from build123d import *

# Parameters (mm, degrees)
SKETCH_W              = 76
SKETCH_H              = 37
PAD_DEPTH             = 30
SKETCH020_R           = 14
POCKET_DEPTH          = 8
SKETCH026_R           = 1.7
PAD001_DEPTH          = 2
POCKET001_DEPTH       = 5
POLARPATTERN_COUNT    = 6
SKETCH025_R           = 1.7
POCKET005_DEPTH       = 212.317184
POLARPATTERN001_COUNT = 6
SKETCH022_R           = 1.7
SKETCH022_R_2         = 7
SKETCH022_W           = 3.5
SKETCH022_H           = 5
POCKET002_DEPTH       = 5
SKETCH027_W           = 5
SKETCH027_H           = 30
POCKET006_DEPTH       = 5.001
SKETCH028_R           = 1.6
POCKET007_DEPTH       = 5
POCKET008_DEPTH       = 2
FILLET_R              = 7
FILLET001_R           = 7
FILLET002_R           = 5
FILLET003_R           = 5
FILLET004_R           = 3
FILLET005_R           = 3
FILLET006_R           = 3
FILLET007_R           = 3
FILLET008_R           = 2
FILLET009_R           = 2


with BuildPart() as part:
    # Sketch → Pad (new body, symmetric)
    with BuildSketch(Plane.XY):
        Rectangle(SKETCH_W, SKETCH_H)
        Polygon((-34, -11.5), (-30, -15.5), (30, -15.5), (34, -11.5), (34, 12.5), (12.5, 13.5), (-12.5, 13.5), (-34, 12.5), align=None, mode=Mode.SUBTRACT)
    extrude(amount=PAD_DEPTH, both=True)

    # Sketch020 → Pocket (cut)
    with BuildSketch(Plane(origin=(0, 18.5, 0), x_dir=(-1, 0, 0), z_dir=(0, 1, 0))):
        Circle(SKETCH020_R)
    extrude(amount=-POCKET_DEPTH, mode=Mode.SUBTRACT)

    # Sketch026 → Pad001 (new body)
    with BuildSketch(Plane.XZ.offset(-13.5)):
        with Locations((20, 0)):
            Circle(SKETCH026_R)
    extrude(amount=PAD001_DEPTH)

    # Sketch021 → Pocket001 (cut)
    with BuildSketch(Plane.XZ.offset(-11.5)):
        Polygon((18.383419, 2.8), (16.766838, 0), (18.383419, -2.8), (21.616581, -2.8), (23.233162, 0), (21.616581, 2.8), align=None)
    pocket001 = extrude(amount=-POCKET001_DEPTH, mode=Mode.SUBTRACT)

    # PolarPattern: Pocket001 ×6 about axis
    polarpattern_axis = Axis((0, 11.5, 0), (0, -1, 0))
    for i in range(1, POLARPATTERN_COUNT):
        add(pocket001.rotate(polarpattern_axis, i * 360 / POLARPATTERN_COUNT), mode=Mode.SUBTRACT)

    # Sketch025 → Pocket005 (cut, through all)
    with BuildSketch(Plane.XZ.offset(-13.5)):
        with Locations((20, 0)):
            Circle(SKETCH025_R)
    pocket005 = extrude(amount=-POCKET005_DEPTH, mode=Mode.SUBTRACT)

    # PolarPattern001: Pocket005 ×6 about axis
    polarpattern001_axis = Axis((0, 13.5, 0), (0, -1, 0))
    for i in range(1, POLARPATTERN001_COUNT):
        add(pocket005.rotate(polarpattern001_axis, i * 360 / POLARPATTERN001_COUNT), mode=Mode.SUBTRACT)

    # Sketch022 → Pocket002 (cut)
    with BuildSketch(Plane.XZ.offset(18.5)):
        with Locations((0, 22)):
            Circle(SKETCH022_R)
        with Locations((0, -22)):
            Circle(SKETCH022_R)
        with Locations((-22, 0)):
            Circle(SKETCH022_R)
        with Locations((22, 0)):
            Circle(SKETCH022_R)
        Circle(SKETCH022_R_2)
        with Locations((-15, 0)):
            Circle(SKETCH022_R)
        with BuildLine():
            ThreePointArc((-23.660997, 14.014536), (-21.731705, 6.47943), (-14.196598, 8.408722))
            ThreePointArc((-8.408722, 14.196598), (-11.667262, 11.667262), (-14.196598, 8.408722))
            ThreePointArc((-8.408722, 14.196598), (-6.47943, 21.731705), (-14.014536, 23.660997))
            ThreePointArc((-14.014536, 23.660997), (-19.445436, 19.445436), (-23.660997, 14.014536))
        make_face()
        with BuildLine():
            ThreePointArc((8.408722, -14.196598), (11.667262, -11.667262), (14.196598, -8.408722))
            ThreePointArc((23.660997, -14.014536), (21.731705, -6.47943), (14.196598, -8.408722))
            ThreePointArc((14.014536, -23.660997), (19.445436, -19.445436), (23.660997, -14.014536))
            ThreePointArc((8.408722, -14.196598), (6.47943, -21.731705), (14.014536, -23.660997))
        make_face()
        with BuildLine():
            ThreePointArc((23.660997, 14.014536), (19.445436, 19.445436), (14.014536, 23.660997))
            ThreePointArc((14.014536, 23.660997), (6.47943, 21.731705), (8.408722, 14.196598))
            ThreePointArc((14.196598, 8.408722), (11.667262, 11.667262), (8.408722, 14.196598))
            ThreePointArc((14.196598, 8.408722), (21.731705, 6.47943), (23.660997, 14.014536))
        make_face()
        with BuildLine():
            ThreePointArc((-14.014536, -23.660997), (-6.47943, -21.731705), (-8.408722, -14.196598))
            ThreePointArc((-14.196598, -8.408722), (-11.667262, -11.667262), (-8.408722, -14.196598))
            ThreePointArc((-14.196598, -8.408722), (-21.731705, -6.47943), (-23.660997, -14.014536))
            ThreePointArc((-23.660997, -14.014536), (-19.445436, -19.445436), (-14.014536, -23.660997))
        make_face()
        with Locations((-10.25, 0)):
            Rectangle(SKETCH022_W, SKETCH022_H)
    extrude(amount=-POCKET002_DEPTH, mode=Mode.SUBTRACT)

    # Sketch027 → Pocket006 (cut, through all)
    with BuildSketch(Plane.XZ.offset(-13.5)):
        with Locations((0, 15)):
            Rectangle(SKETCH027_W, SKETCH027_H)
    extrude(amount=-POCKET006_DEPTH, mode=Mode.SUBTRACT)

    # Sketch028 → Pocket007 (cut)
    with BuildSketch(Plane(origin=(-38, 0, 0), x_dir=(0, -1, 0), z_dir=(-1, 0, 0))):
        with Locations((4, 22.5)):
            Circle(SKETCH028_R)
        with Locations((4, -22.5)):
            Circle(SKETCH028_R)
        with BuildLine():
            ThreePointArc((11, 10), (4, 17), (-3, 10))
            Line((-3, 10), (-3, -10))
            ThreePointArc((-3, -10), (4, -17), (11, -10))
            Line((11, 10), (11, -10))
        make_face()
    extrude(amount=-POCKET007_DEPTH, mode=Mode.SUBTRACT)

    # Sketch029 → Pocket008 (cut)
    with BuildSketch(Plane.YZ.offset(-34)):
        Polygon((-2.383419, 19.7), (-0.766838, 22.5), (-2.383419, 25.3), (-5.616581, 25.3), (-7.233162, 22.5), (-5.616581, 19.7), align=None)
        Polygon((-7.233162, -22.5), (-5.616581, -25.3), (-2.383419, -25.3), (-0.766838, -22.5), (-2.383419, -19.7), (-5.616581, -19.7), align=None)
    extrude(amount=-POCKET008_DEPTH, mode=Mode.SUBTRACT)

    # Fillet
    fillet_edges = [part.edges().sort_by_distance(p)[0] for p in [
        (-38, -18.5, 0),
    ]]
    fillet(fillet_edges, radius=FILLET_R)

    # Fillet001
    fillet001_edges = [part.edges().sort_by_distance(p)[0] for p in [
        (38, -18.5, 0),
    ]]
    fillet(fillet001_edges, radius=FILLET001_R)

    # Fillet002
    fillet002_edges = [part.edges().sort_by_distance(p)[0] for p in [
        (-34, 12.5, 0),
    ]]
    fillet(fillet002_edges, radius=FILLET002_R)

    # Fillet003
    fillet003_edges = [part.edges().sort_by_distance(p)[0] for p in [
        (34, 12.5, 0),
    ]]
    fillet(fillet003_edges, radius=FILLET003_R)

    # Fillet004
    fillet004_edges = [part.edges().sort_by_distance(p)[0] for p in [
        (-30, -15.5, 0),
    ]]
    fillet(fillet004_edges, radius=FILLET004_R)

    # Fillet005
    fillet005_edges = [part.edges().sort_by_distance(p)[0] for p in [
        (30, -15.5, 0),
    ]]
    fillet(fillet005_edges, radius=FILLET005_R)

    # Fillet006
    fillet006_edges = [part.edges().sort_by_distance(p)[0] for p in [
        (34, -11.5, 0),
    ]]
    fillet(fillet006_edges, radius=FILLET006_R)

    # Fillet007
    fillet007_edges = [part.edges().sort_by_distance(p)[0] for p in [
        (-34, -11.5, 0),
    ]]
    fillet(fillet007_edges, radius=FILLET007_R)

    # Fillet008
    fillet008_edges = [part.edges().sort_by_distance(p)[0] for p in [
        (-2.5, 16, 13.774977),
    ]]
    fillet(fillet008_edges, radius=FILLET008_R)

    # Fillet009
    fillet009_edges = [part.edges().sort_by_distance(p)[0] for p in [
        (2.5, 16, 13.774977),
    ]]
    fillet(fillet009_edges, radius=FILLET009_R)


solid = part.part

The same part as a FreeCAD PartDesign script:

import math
import FreeCAD as App
import Part
import Sketcher

V = App.Vector
Q = App.Units.Quantity


def edges_at(feature, points):
    """Names of the edges that pass closest to the given points."""
    edges = feature.Shape.Edges
    near = lambda p: min(range(len(edges)), key=lambda i: edges[i].distToShape(Part.Vertex(*p))[0])
    return sorted({f"Edge{near(p) + 1}" for p in points})

doc = App.newDocument("Part")
body = doc.addObject("PartDesign::Body", "Body")

# Sketch on XY plane
sketch1 = doc.addObject("Sketcher::SketchObject", "Sketch")
body.addObject(sketch1)
sketch1.AttachmentSupport = (doc.XY_Plane, [""])
sketch1.MapMode = "FlatFace"
sketch1.addGeometry(Part.LineSegment(V(-38, 18, 0), V(-38, -18, 0)), False)
sketch1.addGeometry(Part.LineSegment(V(-38, -18, 0), V(38, -18, 0)), False)
sketch1.addGeometry(Part.LineSegment(V(38, -18, 0), V(38, 18, 0)), False)
sketch1.addGeometry(Part.LineSegment(V(38, 18, 0), V(-38, 18, 0)), False)
sketch1.addGeometry(Part.LineSegment(V(-30, -16, 0), V(-34, -12, 0)), False)
sketch1.addGeometry(Part.LineSegment(V(-34, -12, 0), V(-34, 12, 0)), False)
sketch1.addGeometry(Part.LineSegment(V(-34, 12, 0), V(-12, 14, 0)), False)
sketch1.addGeometry(Part.LineSegment(V(-12, 14, 0), V(12, 14, 0)), False)
sketch1.addGeometry(Part.LineSegment(V(12, 14, 0), V(34, 12, 0)), False)
sketch1.addGeometry(Part.LineSegment(V(34, 12, 0), V(34, -12, 0)), False)
sketch1.addGeometry(Part.LineSegment(V(34, -12, 0), V(30, -16, 0)), False)
sketch1.addGeometry(Part.LineSegment(V(30, -16, 0), V(-30, -16, 0)), False)
sketch1.addConstraint(Sketcher.Constraint("Coincident", 0, 2, 1, 1))
sketch1.addConstraint(Sketcher.Constraint("Coincident", 1, 2, 2, 1))
sketch1.addConstraint(Sketcher.Constraint("Coincident", 2, 2, 3, 1))
sketch1.addConstraint(Sketcher.Constraint("Coincident", 3, 2, 0, 1))
sketch1.addConstraint(Sketcher.Constraint("Coincident", 4, 2, 5, 1))
sketch1.addConstraint(Sketcher.Constraint("Coincident", 5, 2, 6, 1))
sketch1.addConstraint(Sketcher.Constraint("Coincident", 6, 2, 7, 1))
sketch1.addConstraint(Sketcher.Constraint("Coincident", 7, 2, 8, 1))
sketch1.addConstraint(Sketcher.Constraint("Coincident", 8, 2, 9, 1))
sketch1.addConstraint(Sketcher.Constraint("Coincident", 9, 2, 10, 1))
sketch1.addConstraint(Sketcher.Constraint("Coincident", 10, 2, 11, 1))
sketch1.addConstraint(Sketcher.Constraint("Coincident", 11, 2, 4, 1))
sketch1.addConstraint(Sketcher.Constraint("Vertical", 0))
sketch1.addConstraint(Sketcher.Constraint("Horizontal", 1))
sketch1.addConstraint(Sketcher.Constraint("Vertical", 2))
sketch1.addConstraint(Sketcher.Constraint("Horizontal", 3))
sketch1.addConstraint(Sketcher.Constraint("Vertical", 5))
sketch1.addConstraint(Sketcher.Constraint("Horizontal", 7))
sketch1.addConstraint(Sketcher.Constraint("Vertical", 9))
sketch1.addConstraint(Sketcher.Constraint("Horizontal", 11))
sketch1.addConstraint(Sketcher.Constraint("Symmetric", 0, 2, 2, 2, -1, 1))
sketch1.addConstraint(Sketcher.Constraint("Symmetric", 5, 2, 8, 2, -2))
sketch1.addConstraint(Sketcher.Constraint("Perpendicular", 4, 10))
sketch1.addConstraint(Sketcher.Constraint("Horizontal", 4, 2, 9, 2))
sketch1.addConstraint(Sketcher.Constraint("Equal", 6, 8))
sketch1.addConstraint(Sketcher.Constraint("Equal", 4, 10))
sketch1.addConstraint(Sketcher.Constraint("DistanceX", 1, 1, 1, 2, Q("76 mm")))
sketch1.addConstraint(Sketcher.Constraint("DistanceX", 7, 1, 7, 2, Q("25 mm")))
sketch1.addConstraint(Sketcher.Constraint("DistanceX", 11, 2, 11, 1, Q("60 mm")))
sketch1.addConstraint(Sketcher.Constraint("DistanceY", 0, 2, 0, 1, Q("37 mm")))
sketch1.addConstraint(Sketcher.Constraint("DistanceY", 5, 1, 5, 2, Q("24 mm")))
sketch1.addConstraint(Sketcher.Constraint("DistanceX", 4, 2, -1, 1, Q("34 mm")))
sketch1.addConstraint(Sketcher.Constraint("DistanceY", 0, 2, 4, 2, Q("7 mm")))
sketch1.addConstraint(Sketcher.Constraint("DistanceY", 5, 2, 6, 2, Q("1 mm")))
pad1 = doc.addObject("PartDesign::Pad", "Pad")
body.addObject(pad1)
pad1.Profile = sketch1
pad1.Length = 60
pad1.Midplane = True

# Sketch on XZ plane
sketch2 = doc.addObject("Sketcher::SketchObject", "Sketch001")
body.addObject(sketch2)
sketch2.AttachmentSupport = (doc.XZ_Plane, [""])
sketch2.MapMode = "FlatFace"
sketch2.AttachmentOffset = App.Placement(V(0, 0, -18.5), App.Rotation())
sketch2.addGeometry(Part.Circle(V(0, 0, 0), V(0, 0, 1), 14), False)
sketch2.addConstraint(Sketcher.Constraint("Coincident", 0, 3, -1, 1))
sketch2.addConstraint(Sketcher.Constraint("Diameter", 0, Q("28 mm")))
pocket1 = doc.addObject("PartDesign::Pocket", "Pocket")
body.addObject(pocket1)
pocket1.Profile = sketch2
pocket1.Length = 8
pocket1.Reversed = True

# Sketch on XZ plane
sketch3 = doc.addObject("Sketcher::SketchObject", "Sketch002")
body.addObject(sketch3)
sketch3.AttachmentSupport = (doc.XZ_Plane, [""])
sketch3.MapMode = "FlatFace"
sketch3.AttachmentOffset = App.Placement(V(0, 0, -13.5), App.Rotation())
sketch3.addGeometry(Part.Circle(V(20, 0, 0), V(0, 0, 1), 1.7), False)
sketch3.addConstraint(Sketcher.Constraint("PointOnObject", 0, 3, -1))
sketch3.addConstraint(Sketcher.Constraint("Diameter", 0, Q("3.4 mm")))
sketch3.addConstraint(Sketcher.Constraint("DistanceX", -1, 1, 0, 3, Q("20 mm")))
pad2 = doc.addObject("PartDesign::Pad", "Pad001")
body.addObject(pad2)
pad2.Profile = sketch3
pad2.Length = 2

# Sketch on XZ plane
sketch4 = doc.addObject("Sketcher::SketchObject", "Sketch003")
body.addObject(sketch4)
sketch4.AttachmentSupport = (doc.XZ_Plane, [""])
sketch4.MapMode = "FlatFace"
sketch4.AttachmentOffset = App.Placement(V(0, 0, -11.5), App.Rotation())
sketch4.addGeometry(Part.LineSegment(V(18.4, 2.8, 0), V(16.8, 0, 0)), False)
sketch4.addGeometry(Part.LineSegment(V(16.8, 0, 0), V(18.4, -2.8, 0)), False)
sketch4.addGeometry(Part.LineSegment(V(18.4, -2.8, 0), V(21.6, -2.8, 0)), False)
sketch4.addGeometry(Part.LineSegment(V(21.6, -2.8, 0), V(23.2, 0, 0)), False)
sketch4.addGeometry(Part.LineSegment(V(23.2, 0, 0), V(21.6, 2.8, 0)), False)
sketch4.addGeometry(Part.LineSegment(V(21.6, 2.8, 0), V(18.4, 2.8, 0)), False)
sketch4.addConstraint(Sketcher.Constraint("Coincident", 0, 2, 1, 1))
sketch4.addConstraint(Sketcher.Constraint("Coincident", 1, 2, 2, 1))
sketch4.addConstraint(Sketcher.Constraint("Coincident", 2, 2, 3, 1))
sketch4.addConstraint(Sketcher.Constraint("Coincident", 3, 2, 4, 1))
sketch4.addConstraint(Sketcher.Constraint("Coincident", 4, 2, 5, 1))
sketch4.addConstraint(Sketcher.Constraint("Coincident", 5, 2, 0, 1))
sketch4.addConstraint(Sketcher.Constraint("Horizontal", 2))
sketch4.addConstraint(Sketcher.Constraint("Horizontal", 5))
sketch4.addConstraint(Sketcher.Constraint("Symmetric", 2, 2, 4, 2, -1))
sketch4.addConstraint(Sketcher.Constraint("PointOnObject", 0, 2, -1))
sketch4.addConstraint(Sketcher.Constraint("PointOnObject", 3, 2, -1))
sketch4.addConstraint(Sketcher.Constraint("Parallel", 0, 3))
sketch4.addConstraint(Sketcher.Constraint("Parallel", 1, 4))
sketch4.addConstraint(Sketcher.Constraint("Angle", 0, Q("-120.000004 deg")))
sketch4.addConstraint(Sketcher.Constraint("DistanceY", 1, 2, -1, 1, Q("2.8 mm")))
sketch4.addConstraint(Sketcher.Constraint("DistanceX", 2, 1, 2, 2, Q("3.233162 mm")))
sketch4.addConstraint(Sketcher.Constraint("DistanceX", -1, 1, 0, 2, Q("16.766838 mm")))
pocket2 = doc.addObject("PartDesign::Pocket", "Pocket001")
body.addObject(pocket2)
pocket2.Profile = sketch4
pocket2.Length = 5
doc.recompute()

polarpattern = doc.addObject("PartDesign::PolarPattern", "PolarPattern")
body.addObject(polarpattern)
polarpattern.Originals = [pocket2]
polarpattern.Axis = (doc.Y_Axis, [""])
polarpattern.Angle = 360
polarpattern.Occurrences = 6
body.Tip = polarpattern

# Sketch on XZ plane
sketch5 = doc.addObject("Sketcher::SketchObject", "Sketch004")
body.addObject(sketch5)
sketch5.AttachmentSupport = (doc.XZ_Plane, [""])
sketch5.MapMode = "FlatFace"
sketch5.AttachmentOffset = App.Placement(V(0, 0, -13.5), App.Rotation())
sketch5.addGeometry(Part.Circle(V(20, 0, 0), V(0, 0, 1), 1.7), False)
sketch5.addConstraint(Sketcher.Constraint("PointOnObject", 0, 3, -1))
sketch5.addConstraint(Sketcher.Constraint("Diameter", 0, Q("3.4 mm")))
sketch5.addConstraint(Sketcher.Constraint("DistanceX", -1, 1, 0, 3, Q("20 mm")))
pocket3 = doc.addObject("PartDesign::Pocket", "Pocket002")
body.addObject(pocket3)
pocket3.Profile = sketch5
pocket3.Type = "ThroughAll"
doc.recompute()

polarpattern2 = doc.addObject("PartDesign::PolarPattern", "PolarPattern001")
body.addObject(polarpattern2)
polarpattern2.Originals = [pocket3]
polarpattern2.Axis = (doc.Y_Axis, [""])
polarpattern2.Angle = 360
polarpattern2.Occurrences = 6
body.Tip = polarpattern2

# Sketch on XZ plane
sketch6 = doc.addObject("Sketcher::SketchObject", "Sketch005")
body.addObject(sketch6)
sketch6.AttachmentSupport = (doc.XZ_Plane, [""])
sketch6.MapMode = "FlatFace"
sketch6.AttachmentOffset = App.Placement(V(0, 0, 18.5), App.Rotation())
sketch6.addGeometry(Part.Circle(V(0, 22, 0), V(0, 0, 1), 1.7), False)
sketch6.addGeometry(Part.Circle(V(0, -22, 0), V(0, 0, 1), 1.7), False)
sketch6.addGeometry(Part.Circle(V(-22, 0, 0), V(0, 0, 1), 1.7), False)
sketch6.addGeometry(Part.Circle(V(22, 0, 0), V(0, 0, 1), 1.7), False)
sketch6.addGeometry(Part.Circle(V(0, 0, 0), V(0, 0, 1), 7), False)
sketch6.addGeometry(Part.Circle(V(-15, 0, 0), V(0, 0, 1), 1.7), False)
sketch6.addGeometry(Part.ArcOfCircle(Part.Circle(V(-18.9, 11.2, 0), V(0, 0, 1), 5.5), math.radians(149), math.radians(329)), False)
sketch6.addGeometry(Part.ArcOfCircle(Part.Circle(V(0, 0, 0), V(0, 0, 1), 16.5), math.radians(121), math.radians(149)), False)
sketch6.addGeometry(Part.ArcOfCircle(Part.Circle(V(-11.2, 18.9, 0), V(0, 0, 1), 5.5), math.radians(-59), math.radians(121)), False)
sketch6.addGeometry(Part.ArcOfCircle(Part.Circle(V(0, 0, 0), V(0, 0, 1), 27.5), math.radians(121), math.radians(149)), False)
sketch6.addGeometry(Part.ArcOfCircle(Part.Circle(V(0, 0, 0), V(0, 0, 1), 16.5), math.radians(-59), math.radians(-31)), False)
sketch6.addGeometry(Part.ArcOfCircle(Part.Circle(V(11.2, -18.9, 0), V(0, 0, 1), 5.5), math.radians(121), math.radians(301)), False)
sketch6.addGeometry(Part.ArcOfCircle(Part.Circle(V(0, 0, 0), V(0, 0, 1), 27.5), math.radians(-59), math.radians(-31)), False)
sketch6.addGeometry(Part.ArcOfCircle(Part.Circle(V(18.9, -11.2, 0), V(0, 0, 1), 5.5), math.radians(-31), math.radians(149)), False)
sketch6.addGeometry(Part.ArcOfCircle(Part.Circle(V(0, 0, 0), V(0, 0, 1), 27.5), math.radians(31), math.radians(59)), False)
sketch6.addGeometry(Part.ArcOfCircle(Part.Circle(V(11.2, 18.9, 0), V(0, 0, 1), 5.5), math.radians(59), math.radians(239)), False)
sketch6.addGeometry(Part.ArcOfCircle(Part.Circle(V(0, 0, 0), V(0, 0, 1), 16.5), math.radians(31), math.radians(59)), False)
sketch6.addGeometry(Part.ArcOfCircle(Part.Circle(V(18.9, 11.2, 0), V(0, 0, 1), 5.5), math.radians(-149), math.radians(31)), False)
sketch6.addGeometry(Part.ArcOfCircle(Part.Circle(V(-11.2, -18.9, 0), V(0, 0, 1), 5.5), math.radians(-121), math.radians(59)), False)
sketch6.addGeometry(Part.ArcOfCircle(Part.Circle(V(0, 0, 0), V(0, 0, 1), 16.5), math.radians(-149), math.radians(-121)), False)
sketch6.addGeometry(Part.ArcOfCircle(Part.Circle(V(-18.9, -11.2, 0), V(0, 0, 1), 5.5), math.radians(31), math.radians(211)), False)
sketch6.addGeometry(Part.ArcOfCircle(Part.Circle(V(0, 0, 0), V(0, 0, 1), 27.5), math.radians(-149), math.radians(-121)), False)
sketch6.addGeometry(Part.LineSegment(V(-12, 2.5, 0), V(-12, -2.5, 0)), False)
sketch6.addGeometry(Part.LineSegment(V(-12, -2.5, 0), V(-8.5, -2.5, 0)), False)
sketch6.addGeometry(Part.LineSegment(V(-8.5, -2.5, 0), V(-8.5, 2.5, 0)), False)
sketch6.addGeometry(Part.LineSegment(V(-8.5, 2.5, 0), V(-12, 2.5, 0)), False)
sketch6.addConstraint(Sketcher.Constraint("Tangent", 6, 2, 7, 2))
sketch6.addConstraint(Sketcher.Constraint("Tangent", 7, 1, 8, 1))
sketch6.addConstraint(Sketcher.Constraint("Tangent", 8, 2, 9, 1))
sketch6.addConstraint(Sketcher.Constraint("Tangent", 9, 2, 6, 1))
sketch6.addConstraint(Sketcher.Constraint("Tangent", 10, 1, 11, 1))
sketch6.addConstraint(Sketcher.Constraint("Tangent", 11, 2, 12, 1))
sketch6.addConstraint(Sketcher.Constraint("Tangent", 12, 2, 13, 1))
sketch6.addConstraint(Sketcher.Constraint("Tangent", 13, 2, 10, 2))
sketch6.addConstraint(Sketcher.Constraint("Tangent", 14, 2, 15, 1))
sketch6.addConstraint(Sketcher.Constraint("Tangent", 15, 2, 16, 2))
sketch6.addConstraint(Sketcher.Constraint("Tangent", 16, 1, 17, 1))
sketch6.addConstraint(Sketcher.Constraint("Tangent", 17, 2, 14, 1))
sketch6.addConstraint(Sketcher.Constraint("Tangent", 18, 2, 19, 2))
sketch6.addConstraint(Sketcher.Constraint("Tangent", 19, 1, 20, 1))
sketch6.addConstraint(Sketcher.Constraint("Tangent", 20, 2, 21, 1))
sketch6.addConstraint(Sketcher.Constraint("Tangent", 21, 2, 18, 1))
sketch6.addConstraint(Sketcher.Constraint("Coincident", 22, 2, 23, 1))
sketch6.addConstraint(Sketcher.Constraint("Coincident", 23, 2, 24, 1))
sketch6.addConstraint(Sketcher.Constraint("Coincident", 24, 2, 25, 1))
sketch6.addConstraint(Sketcher.Constraint("Coincident", 25, 2, 22, 1))
sketch6.addConstraint(Sketcher.Constraint("Vertical", 22))
sketch6.addConstraint(Sketcher.Constraint("Horizontal", 23))
sketch6.addConstraint(Sketcher.Constraint("Vertical", 24))
sketch6.addConstraint(Sketcher.Constraint("Horizontal", 25))
sketch6.addConstraint(Sketcher.Constraint("Coincident", 4, 3, -1, 1))
sketch6.addConstraint(Sketcher.Constraint("Coincident", 7, 3, -1, 1))
sketch6.addConstraint(Sketcher.Constraint("Coincident", 10, 3, -1, 1))
sketch6.addConstraint(Sketcher.Constraint("Coincident", 16, 3, -1, 1))
sketch6.addConstraint(Sketcher.Constraint("Coincident", 19, 3, -1, 1))
sketch6.addConstraint(Sketcher.Constraint("Equal", 0, 1))
sketch6.addConstraint(Sketcher.Constraint("Equal", 1, 2))
sketch6.addConstraint(Sketcher.Constraint("Equal", 2, 3))
sketch6.addConstraint(Sketcher.Constraint("Equal", 3, 5))
sketch6.addConstraint(Sketcher.Constraint("Equal", 6, 8))
sketch6.addConstraint(Sketcher.Constraint("Equal", 7, 10))
sketch6.addConstraint(Sketcher.Constraint("Equal", 8, 11))
sketch6.addConstraint(Sketcher.Constraint("Equal", 9, 12))
sketch6.addConstraint(Sketcher.Constraint("Equal", 11, 13))
sketch6.addConstraint(Sketcher.Constraint("Equal", 12, 14))
sketch6.addConstraint(Sketcher.Constraint("Equal", 13, 15))
sketch6.addConstraint(Sketcher.Constraint("Equal", 10, 16))
sketch6.addConstraint(Sketcher.Constraint("Equal", 15, 17))
sketch6.addConstraint(Sketcher.Constraint("Equal", 17, 18))
sketch6.addConstraint(Sketcher.Constraint("Equal", 16, 19))
sketch6.addConstraint(Sketcher.Constraint("Equal", 18, 20))
sketch6.addConstraint(Sketcher.Constraint("Equal", 14, 21))
sketch6.addConstraint(Sketcher.Constraint("Symmetric", 0, 3, 1, 3, -1, 1))
sketch6.addConstraint(Sketcher.Constraint("Symmetric", 2, 3, 3, 3, -1, 1))
sketch6.addConstraint(Sketcher.Constraint("PointOnObject", 0, 3, -2))
sketch6.addConstraint(Sketcher.Constraint("PointOnObject", 2, 3, -1))
sketch6.addConstraint(Sketcher.Constraint("PointOnObject", 5, 3, -1))
sketch6.addConstraint(Sketcher.Constraint("Horizontal", 8, 3, 15, 3))
sketch6.addConstraint(Sketcher.Constraint("Horizontal", 6, 3, 17, 3))
sketch6.addConstraint(Sketcher.Constraint("Horizontal", 11, 3, 18, 3))
sketch6.addConstraint(Sketcher.Constraint("Horizontal", 13, 3, 20, 3))
sketch6.addConstraint(Sketcher.Constraint("Vertical", 11, 3, 15, 3))
sketch6.addConstraint(Sketcher.Constraint("Vertical", 13, 3, 17, 3))
sketch6.addConstraint(Sketcher.Constraint("Diameter", 4, Q("14 mm")))
sketch6.addConstraint(Sketcher.Constraint("Diameter", 0, Q("3.4 mm")))
sketch6.addConstraint(Sketcher.Constraint("Radius", 6, Q("5.5 mm")))
sketch6.addConstraint(Sketcher.Constraint("DistanceY", 22, 2, 22, 1, Q("5 mm")))
sketch6.addConstraint(Sketcher.Constraint("DistanceX", 23, 1, 23, 2, Q("3.5 mm")))
sketch6.addConstraint(Sketcher.Constraint("DistanceY", -1, 1, 0, 3, Q("22 mm")))
sketch6.addConstraint(Sketcher.Constraint("DistanceX", 2, 3, -1, 1, Q("22 mm")))
sketch6.addConstraint(Sketcher.Constraint("DistanceX", 5, 3, -1, 1, Q("15 mm")))
sketch6.addConstraint(Sketcher.Constraint("DistanceX", 22, 2, -1, 1, Q("12 mm")))
sketch6.addConstraint(Sketcher.Constraint("DistanceY", 22, 2, -1, 1, Q("2.5 mm")))
sketch6.addConstraint(Sketcher.Constraint("Radius", 9, Q("27.50002 mm")))
sketch6.addConstraint(Sketcher.Constraint("Radius", 7, Q("16.499996 mm")))
sketch6.addConstraint(Sketcher.Constraint("DistanceX", 6, 2, -1, 1, Q("14.196598 mm")))
sketch6.addConstraint(Sketcher.Constraint("DistanceY", -1, 1, 15, 2, Q("14.196598 mm")))
pocket4 = doc.addObject("PartDesign::Pocket", "Pocket003")
body.addObject(pocket4)
pocket4.Profile = sketch6
pocket4.Length = 5

# Sketch on XZ plane
sketch7 = doc.addObject("Sketcher::SketchObject", "Sketch006")
body.addObject(sketch7)
sketch7.AttachmentSupport = (doc.XZ_Plane, [""])
sketch7.MapMode = "FlatFace"
sketch7.AttachmentOffset = App.Placement(V(0, 0, -13.5), App.Rotation())
sketch7.addGeometry(Part.LineSegment(V(-2, 30, 0), V(-2, 0, 0)), False)
sketch7.addGeometry(Part.LineSegment(V(-2, 0, 0), V(2, 0, 0)), False)
sketch7.addGeometry(Part.LineSegment(V(2, 0, 0), V(2, 30, 0)), False)
sketch7.addGeometry(Part.LineSegment(V(2, 30, 0), V(-2, 30, 0)), False)
sketch7.addConstraint(Sketcher.Constraint("Coincident", 0, 2, 1, 1))
sketch7.addConstraint(Sketcher.Constraint("Coincident", 1, 2, 2, 1))
sketch7.addConstraint(Sketcher.Constraint("Coincident", 2, 2, 3, 1))
sketch7.addConstraint(Sketcher.Constraint("Coincident", 3, 2, 0, 1))
sketch7.addConstraint(Sketcher.Constraint("Vertical", 0))
sketch7.addConstraint(Sketcher.Constraint("Horizontal", 1))
sketch7.addConstraint(Sketcher.Constraint("Vertical", 2))
sketch7.addConstraint(Sketcher.Constraint("Horizontal", 3))
sketch7.addConstraint(Sketcher.Constraint("Symmetric", 0, 2, 1, 2, -1, 1))
sketch7.addConstraint(Sketcher.Constraint("DistanceX", 1, 1, 1, 2, Q("5 mm")))
sketch7.addConstraint(Sketcher.Constraint("DistanceY", 0, 2, 0, 1, Q("30 mm")))
pocket5 = doc.addObject("PartDesign::Pocket", "Pocket004")
body.addObject(pocket5)
pocket5.Profile = sketch7
pocket5.Type = "ThroughAll"

# Sketch on YZ plane
sketch8 = doc.addObject("Sketcher::SketchObject", "Sketch007")
body.addObject(sketch8)
sketch8.AttachmentSupport = (doc.YZ_Plane, [""])
sketch8.MapMode = "FlatFace"
sketch8.AttachmentOffset = App.Placement(V(0, 0, -38), App.Rotation())
sketch8.addGeometry(Part.Circle(V(-4, 22.5, 0), V(0, 0, 1), 1.6), False)
sketch8.addGeometry(Part.Circle(V(-4, -22.5, 0), V(0, 0, 1), 1.6), False)
sketch8.addGeometry(Part.ArcOfCircle(Part.Circle(V(-4, 10, 0), V(0, 0, 1), 7), math.radians(0), math.radians(180)), False)
sketch8.addGeometry(Part.LineSegment(V(3, 10, 0), V(3, -10, 0)), False)
sketch8.addGeometry(Part.ArcOfCircle(Part.Circle(V(-4, -10, 0), V(0, 0, 1), 7), math.radians(180), math.radians(360)), False)
sketch8.addGeometry(Part.LineSegment(V(-11, -10, 0), V(-11, 10, 0)), False)
sketch8.addConstraint(Sketcher.Constraint("Tangent", 2, 1, 3, 1))
sketch8.addConstraint(Sketcher.Constraint("Tangent", 3, 2, 4, 2))
sketch8.addConstraint(Sketcher.Constraint("Tangent", 4, 1, 5, 1))
sketch8.addConstraint(Sketcher.Constraint("Tangent", 5, 2, 2, 2))
sketch8.addConstraint(Sketcher.Constraint("Vertical", 3))
sketch8.addConstraint(Sketcher.Constraint("Vertical", 5))
sketch8.addConstraint(Sketcher.Constraint("Equal", 0, 1))
sketch8.addConstraint(Sketcher.Constraint("Symmetric", 0, 3, 1, 3, -1))
sketch8.addConstraint(Sketcher.Constraint("Vertical", 1, 3, 2, 3))
sketch8.addConstraint(Sketcher.Constraint("Radius", 2, Q("7 mm")))
sketch8.addConstraint(Sketcher.Constraint("Diameter", 0, Q("3.2 mm")))
sketch8.addConstraint(Sketcher.Constraint("DistanceY", 3, 2, 3, 1, Q("20 mm")))
sketch8.addConstraint(Sketcher.Constraint("DistanceX", 0, 3, -1, 1, Q("4 mm")))
sketch8.addConstraint(Sketcher.Constraint("DistanceY", -1, 1, 2, 3, Q("10 mm")))
sketch8.addConstraint(Sketcher.Constraint("DistanceY", 1, 3, 0, 3, Q("45 mm")))
pocket6 = doc.addObject("PartDesign::Pocket", "Pocket005")
body.addObject(pocket6)
pocket6.Profile = sketch8
pocket6.Length = 5
pocket6.Reversed = True

# Sketch on YZ plane
sketch9 = doc.addObject("Sketcher::SketchObject", "Sketch008")
body.addObject(sketch9)
sketch9.AttachmentSupport = (doc.YZ_Plane, [""])
sketch9.MapMode = "FlatFace"
sketch9.AttachmentOffset = App.Placement(V(0, 0, -34), App.Rotation())
sketch9.addGeometry(Part.LineSegment(V(-2.4, 19.7, 0), V(-0.8, 22.5, 0)), False)
sketch9.addGeometry(Part.LineSegment(V(-0.8, 22.5, 0), V(-2.4, 25.3, 0)), False)
sketch9.addGeometry(Part.LineSegment(V(-2.4, 25.3, 0), V(-5.6, 25.3, 0)), False)
sketch9.addGeometry(Part.LineSegment(V(-5.6, 25.3, 0), V(-7.2, 22.5, 0)), False)
sketch9.addGeometry(Part.LineSegment(V(-7.2, 22.5, 0), V(-5.6, 19.7, 0)), False)
sketch9.addGeometry(Part.LineSegment(V(-5.6, 19.7, 0), V(-2.4, 19.7, 0)), False)
sketch9.addGeometry(Part.LineSegment(V(-7.2, -22.5, 0), V(-5.6, -25.3, 0)), False)
sketch9.addGeometry(Part.LineSegment(V(-5.6, -25.3, 0), V(-2.4, -25.3, 0)), False)
sketch9.addGeometry(Part.LineSegment(V(-2.4, -25.3, 0), V(-0.8, -22.5, 0)), False)
sketch9.addGeometry(Part.LineSegment(V(-0.8, -22.5, 0), V(-2.4, -19.7, 0)), False)
sketch9.addGeometry(Part.LineSegment(V(-2.4, -19.7, 0), V(-5.6, -19.7, 0)), False)
sketch9.addGeometry(Part.LineSegment(V(-5.6, -19.7, 0), V(-7.2, -22.5, 0)), False)
sketch9.addConstraint(Sketcher.Constraint("Coincident", 0, 2, 1, 1))
sketch9.addConstraint(Sketcher.Constraint("Coincident", 1, 2, 2, 1))
sketch9.addConstraint(Sketcher.Constraint("Coincident", 2, 2, 3, 1))
sketch9.addConstraint(Sketcher.Constraint("Coincident", 3, 2, 4, 1))
sketch9.addConstraint(Sketcher.Constraint("Coincident", 4, 2, 5, 1))
sketch9.addConstraint(Sketcher.Constraint("Coincident", 5, 2, 0, 1))
sketch9.addConstraint(Sketcher.Constraint("Coincident", 6, 2, 7, 1))
sketch9.addConstraint(Sketcher.Constraint("Coincident", 7, 2, 8, 1))
sketch9.addConstraint(Sketcher.Constraint("Coincident", 8, 2, 9, 1))
sketch9.addConstraint(Sketcher.Constraint("Coincident", 9, 2, 10, 1))
sketch9.addConstraint(Sketcher.Constraint("Coincident", 10, 2, 11, 1))
sketch9.addConstraint(Sketcher.Constraint("Coincident", 11, 2, 6, 1))
sketch9.addConstraint(Sketcher.Constraint("Horizontal", 2))
sketch9.addConstraint(Sketcher.Constraint("Horizontal", 5))
sketch9.addConstraint(Sketcher.Constraint("Horizontal", 7))
sketch9.addConstraint(Sketcher.Constraint("Horizontal", 10))
sketch9.addConstraint(Sketcher.Constraint("Symmetric", 2, 2, 6, 2, -1))
sketch9.addConstraint(Sketcher.Constraint("Symmetric", 0, 2, 8, 2, -1))
sketch9.addConstraint(Sketcher.Constraint("Symmetric", 5, 2, 9, 2, -1))
sketch9.addConstraint(Sketcher.Constraint("Symmetric", 3, 2, 11, 2, -1))
sketch9.addConstraint(Sketcher.Constraint("Parallel", 0, 3))
sketch9.addConstraint(Sketcher.Constraint("Parallel", 1, 4))
sketch9.addConstraint(Sketcher.Constraint("Parallel", 4, 6))
sketch9.addConstraint(Sketcher.Constraint("Parallel", 3, 8))
sketch9.addConstraint(Sketcher.Constraint("Parallel", 8, 11))
sketch9.addConstraint(Sketcher.Constraint("Horizontal", 0, 2, 3, 2))
sketch9.addConstraint(Sketcher.Constraint("Vertical", 2, 2, 4, 2))
sketch9.addConstraint(Sketcher.Constraint("Angle", 0, Q("59.999996 deg")))
sketch9.addConstraint(Sketcher.Constraint("DistanceY", 6, 2, 4, 2, Q("45 mm")))
sketch9.addConstraint(Sketcher.Constraint("DistanceY", -1, 1, 1, 2, Q("25.3 mm")))
sketch9.addConstraint(Sketcher.Constraint("DistanceX", 2, 2, 2, 1, Q("3.233162 mm")))
sketch9.addConstraint(Sketcher.Constraint("DistanceX", 0, 2, -1, 1, Q("0.766838 mm")))
pocket7 = doc.addObject("PartDesign::Pocket", "Pocket006")
body.addObject(pocket7)
pocket7.Profile = sketch9
pocket7.Length = 2
doc.recompute()

fillet = doc.addObject("PartDesign::Fillet", "Fillet")
body.addObject(fillet)
fillet.Base = (pocket7, edges_at(pocket7, [(-38, -18.5, 0)]))
fillet.Radius = 7
doc.recompute()

fillet2 = doc.addObject("PartDesign::Fillet", "Fillet001")
body.addObject(fillet2)
fillet2.Base = (fillet, edges_at(fillet, [(38, -18.5, 0)]))
fillet2.Radius = 7
doc.recompute()

fillet3 = doc.addObject("PartDesign::Fillet", "Fillet002")
body.addObject(fillet3)
fillet3.Base = (fillet2, edges_at(fillet2, [(-34, 12.5, 0)]))
fillet3.Radius = 5
doc.recompute()

fillet4 = doc.addObject("PartDesign::Fillet", "Fillet003")
body.addObject(fillet4)
fillet4.Base = (fillet3, edges_at(fillet3, [(34, 12.5, 0)]))
fillet4.Radius = 5
doc.recompute()

fillet5 = doc.addObject("PartDesign::Fillet", "Fillet004")
body.addObject(fillet5)
fillet5.Base = (fillet4, edges_at(fillet4, [(-30, -15.5, 0)]))
fillet5.Radius = 3
doc.recompute()

fillet6 = doc.addObject("PartDesign::Fillet", "Fillet005")
body.addObject(fillet6)
fillet6.Base = (fillet5, edges_at(fillet5, [(30, -15.5, 0)]))
fillet6.Radius = 3
doc.recompute()

fillet7 = doc.addObject("PartDesign::Fillet", "Fillet006")
body.addObject(fillet7)
fillet7.Base = (fillet6, edges_at(fillet6, [(34, -11.5, 0)]))
fillet7.Radius = 3
doc.recompute()

fillet8 = doc.addObject("PartDesign::Fillet", "Fillet007")
body.addObject(fillet8)
fillet8.Base = (fillet7, edges_at(fillet7, [(-34, -11.5, 0)]))
fillet8.Radius = 3
doc.recompute()

fillet9 = doc.addObject("PartDesign::Fillet", "Fillet008")
body.addObject(fillet9)
fillet9.Base = (fillet8, edges_at(fillet8, [(-2.5, 16, 13.775)]))
fillet9.Radius = 2
doc.recompute()

fillet10 = doc.addObject("PartDesign::Fillet", "Fillet009")
body.addObject(fillet10)
fillet10.Base = (fillet9, edges_at(fillet9, [(2.5, 16, 13.775)]))
fillet10.Radius = 2

doc.recompute()
